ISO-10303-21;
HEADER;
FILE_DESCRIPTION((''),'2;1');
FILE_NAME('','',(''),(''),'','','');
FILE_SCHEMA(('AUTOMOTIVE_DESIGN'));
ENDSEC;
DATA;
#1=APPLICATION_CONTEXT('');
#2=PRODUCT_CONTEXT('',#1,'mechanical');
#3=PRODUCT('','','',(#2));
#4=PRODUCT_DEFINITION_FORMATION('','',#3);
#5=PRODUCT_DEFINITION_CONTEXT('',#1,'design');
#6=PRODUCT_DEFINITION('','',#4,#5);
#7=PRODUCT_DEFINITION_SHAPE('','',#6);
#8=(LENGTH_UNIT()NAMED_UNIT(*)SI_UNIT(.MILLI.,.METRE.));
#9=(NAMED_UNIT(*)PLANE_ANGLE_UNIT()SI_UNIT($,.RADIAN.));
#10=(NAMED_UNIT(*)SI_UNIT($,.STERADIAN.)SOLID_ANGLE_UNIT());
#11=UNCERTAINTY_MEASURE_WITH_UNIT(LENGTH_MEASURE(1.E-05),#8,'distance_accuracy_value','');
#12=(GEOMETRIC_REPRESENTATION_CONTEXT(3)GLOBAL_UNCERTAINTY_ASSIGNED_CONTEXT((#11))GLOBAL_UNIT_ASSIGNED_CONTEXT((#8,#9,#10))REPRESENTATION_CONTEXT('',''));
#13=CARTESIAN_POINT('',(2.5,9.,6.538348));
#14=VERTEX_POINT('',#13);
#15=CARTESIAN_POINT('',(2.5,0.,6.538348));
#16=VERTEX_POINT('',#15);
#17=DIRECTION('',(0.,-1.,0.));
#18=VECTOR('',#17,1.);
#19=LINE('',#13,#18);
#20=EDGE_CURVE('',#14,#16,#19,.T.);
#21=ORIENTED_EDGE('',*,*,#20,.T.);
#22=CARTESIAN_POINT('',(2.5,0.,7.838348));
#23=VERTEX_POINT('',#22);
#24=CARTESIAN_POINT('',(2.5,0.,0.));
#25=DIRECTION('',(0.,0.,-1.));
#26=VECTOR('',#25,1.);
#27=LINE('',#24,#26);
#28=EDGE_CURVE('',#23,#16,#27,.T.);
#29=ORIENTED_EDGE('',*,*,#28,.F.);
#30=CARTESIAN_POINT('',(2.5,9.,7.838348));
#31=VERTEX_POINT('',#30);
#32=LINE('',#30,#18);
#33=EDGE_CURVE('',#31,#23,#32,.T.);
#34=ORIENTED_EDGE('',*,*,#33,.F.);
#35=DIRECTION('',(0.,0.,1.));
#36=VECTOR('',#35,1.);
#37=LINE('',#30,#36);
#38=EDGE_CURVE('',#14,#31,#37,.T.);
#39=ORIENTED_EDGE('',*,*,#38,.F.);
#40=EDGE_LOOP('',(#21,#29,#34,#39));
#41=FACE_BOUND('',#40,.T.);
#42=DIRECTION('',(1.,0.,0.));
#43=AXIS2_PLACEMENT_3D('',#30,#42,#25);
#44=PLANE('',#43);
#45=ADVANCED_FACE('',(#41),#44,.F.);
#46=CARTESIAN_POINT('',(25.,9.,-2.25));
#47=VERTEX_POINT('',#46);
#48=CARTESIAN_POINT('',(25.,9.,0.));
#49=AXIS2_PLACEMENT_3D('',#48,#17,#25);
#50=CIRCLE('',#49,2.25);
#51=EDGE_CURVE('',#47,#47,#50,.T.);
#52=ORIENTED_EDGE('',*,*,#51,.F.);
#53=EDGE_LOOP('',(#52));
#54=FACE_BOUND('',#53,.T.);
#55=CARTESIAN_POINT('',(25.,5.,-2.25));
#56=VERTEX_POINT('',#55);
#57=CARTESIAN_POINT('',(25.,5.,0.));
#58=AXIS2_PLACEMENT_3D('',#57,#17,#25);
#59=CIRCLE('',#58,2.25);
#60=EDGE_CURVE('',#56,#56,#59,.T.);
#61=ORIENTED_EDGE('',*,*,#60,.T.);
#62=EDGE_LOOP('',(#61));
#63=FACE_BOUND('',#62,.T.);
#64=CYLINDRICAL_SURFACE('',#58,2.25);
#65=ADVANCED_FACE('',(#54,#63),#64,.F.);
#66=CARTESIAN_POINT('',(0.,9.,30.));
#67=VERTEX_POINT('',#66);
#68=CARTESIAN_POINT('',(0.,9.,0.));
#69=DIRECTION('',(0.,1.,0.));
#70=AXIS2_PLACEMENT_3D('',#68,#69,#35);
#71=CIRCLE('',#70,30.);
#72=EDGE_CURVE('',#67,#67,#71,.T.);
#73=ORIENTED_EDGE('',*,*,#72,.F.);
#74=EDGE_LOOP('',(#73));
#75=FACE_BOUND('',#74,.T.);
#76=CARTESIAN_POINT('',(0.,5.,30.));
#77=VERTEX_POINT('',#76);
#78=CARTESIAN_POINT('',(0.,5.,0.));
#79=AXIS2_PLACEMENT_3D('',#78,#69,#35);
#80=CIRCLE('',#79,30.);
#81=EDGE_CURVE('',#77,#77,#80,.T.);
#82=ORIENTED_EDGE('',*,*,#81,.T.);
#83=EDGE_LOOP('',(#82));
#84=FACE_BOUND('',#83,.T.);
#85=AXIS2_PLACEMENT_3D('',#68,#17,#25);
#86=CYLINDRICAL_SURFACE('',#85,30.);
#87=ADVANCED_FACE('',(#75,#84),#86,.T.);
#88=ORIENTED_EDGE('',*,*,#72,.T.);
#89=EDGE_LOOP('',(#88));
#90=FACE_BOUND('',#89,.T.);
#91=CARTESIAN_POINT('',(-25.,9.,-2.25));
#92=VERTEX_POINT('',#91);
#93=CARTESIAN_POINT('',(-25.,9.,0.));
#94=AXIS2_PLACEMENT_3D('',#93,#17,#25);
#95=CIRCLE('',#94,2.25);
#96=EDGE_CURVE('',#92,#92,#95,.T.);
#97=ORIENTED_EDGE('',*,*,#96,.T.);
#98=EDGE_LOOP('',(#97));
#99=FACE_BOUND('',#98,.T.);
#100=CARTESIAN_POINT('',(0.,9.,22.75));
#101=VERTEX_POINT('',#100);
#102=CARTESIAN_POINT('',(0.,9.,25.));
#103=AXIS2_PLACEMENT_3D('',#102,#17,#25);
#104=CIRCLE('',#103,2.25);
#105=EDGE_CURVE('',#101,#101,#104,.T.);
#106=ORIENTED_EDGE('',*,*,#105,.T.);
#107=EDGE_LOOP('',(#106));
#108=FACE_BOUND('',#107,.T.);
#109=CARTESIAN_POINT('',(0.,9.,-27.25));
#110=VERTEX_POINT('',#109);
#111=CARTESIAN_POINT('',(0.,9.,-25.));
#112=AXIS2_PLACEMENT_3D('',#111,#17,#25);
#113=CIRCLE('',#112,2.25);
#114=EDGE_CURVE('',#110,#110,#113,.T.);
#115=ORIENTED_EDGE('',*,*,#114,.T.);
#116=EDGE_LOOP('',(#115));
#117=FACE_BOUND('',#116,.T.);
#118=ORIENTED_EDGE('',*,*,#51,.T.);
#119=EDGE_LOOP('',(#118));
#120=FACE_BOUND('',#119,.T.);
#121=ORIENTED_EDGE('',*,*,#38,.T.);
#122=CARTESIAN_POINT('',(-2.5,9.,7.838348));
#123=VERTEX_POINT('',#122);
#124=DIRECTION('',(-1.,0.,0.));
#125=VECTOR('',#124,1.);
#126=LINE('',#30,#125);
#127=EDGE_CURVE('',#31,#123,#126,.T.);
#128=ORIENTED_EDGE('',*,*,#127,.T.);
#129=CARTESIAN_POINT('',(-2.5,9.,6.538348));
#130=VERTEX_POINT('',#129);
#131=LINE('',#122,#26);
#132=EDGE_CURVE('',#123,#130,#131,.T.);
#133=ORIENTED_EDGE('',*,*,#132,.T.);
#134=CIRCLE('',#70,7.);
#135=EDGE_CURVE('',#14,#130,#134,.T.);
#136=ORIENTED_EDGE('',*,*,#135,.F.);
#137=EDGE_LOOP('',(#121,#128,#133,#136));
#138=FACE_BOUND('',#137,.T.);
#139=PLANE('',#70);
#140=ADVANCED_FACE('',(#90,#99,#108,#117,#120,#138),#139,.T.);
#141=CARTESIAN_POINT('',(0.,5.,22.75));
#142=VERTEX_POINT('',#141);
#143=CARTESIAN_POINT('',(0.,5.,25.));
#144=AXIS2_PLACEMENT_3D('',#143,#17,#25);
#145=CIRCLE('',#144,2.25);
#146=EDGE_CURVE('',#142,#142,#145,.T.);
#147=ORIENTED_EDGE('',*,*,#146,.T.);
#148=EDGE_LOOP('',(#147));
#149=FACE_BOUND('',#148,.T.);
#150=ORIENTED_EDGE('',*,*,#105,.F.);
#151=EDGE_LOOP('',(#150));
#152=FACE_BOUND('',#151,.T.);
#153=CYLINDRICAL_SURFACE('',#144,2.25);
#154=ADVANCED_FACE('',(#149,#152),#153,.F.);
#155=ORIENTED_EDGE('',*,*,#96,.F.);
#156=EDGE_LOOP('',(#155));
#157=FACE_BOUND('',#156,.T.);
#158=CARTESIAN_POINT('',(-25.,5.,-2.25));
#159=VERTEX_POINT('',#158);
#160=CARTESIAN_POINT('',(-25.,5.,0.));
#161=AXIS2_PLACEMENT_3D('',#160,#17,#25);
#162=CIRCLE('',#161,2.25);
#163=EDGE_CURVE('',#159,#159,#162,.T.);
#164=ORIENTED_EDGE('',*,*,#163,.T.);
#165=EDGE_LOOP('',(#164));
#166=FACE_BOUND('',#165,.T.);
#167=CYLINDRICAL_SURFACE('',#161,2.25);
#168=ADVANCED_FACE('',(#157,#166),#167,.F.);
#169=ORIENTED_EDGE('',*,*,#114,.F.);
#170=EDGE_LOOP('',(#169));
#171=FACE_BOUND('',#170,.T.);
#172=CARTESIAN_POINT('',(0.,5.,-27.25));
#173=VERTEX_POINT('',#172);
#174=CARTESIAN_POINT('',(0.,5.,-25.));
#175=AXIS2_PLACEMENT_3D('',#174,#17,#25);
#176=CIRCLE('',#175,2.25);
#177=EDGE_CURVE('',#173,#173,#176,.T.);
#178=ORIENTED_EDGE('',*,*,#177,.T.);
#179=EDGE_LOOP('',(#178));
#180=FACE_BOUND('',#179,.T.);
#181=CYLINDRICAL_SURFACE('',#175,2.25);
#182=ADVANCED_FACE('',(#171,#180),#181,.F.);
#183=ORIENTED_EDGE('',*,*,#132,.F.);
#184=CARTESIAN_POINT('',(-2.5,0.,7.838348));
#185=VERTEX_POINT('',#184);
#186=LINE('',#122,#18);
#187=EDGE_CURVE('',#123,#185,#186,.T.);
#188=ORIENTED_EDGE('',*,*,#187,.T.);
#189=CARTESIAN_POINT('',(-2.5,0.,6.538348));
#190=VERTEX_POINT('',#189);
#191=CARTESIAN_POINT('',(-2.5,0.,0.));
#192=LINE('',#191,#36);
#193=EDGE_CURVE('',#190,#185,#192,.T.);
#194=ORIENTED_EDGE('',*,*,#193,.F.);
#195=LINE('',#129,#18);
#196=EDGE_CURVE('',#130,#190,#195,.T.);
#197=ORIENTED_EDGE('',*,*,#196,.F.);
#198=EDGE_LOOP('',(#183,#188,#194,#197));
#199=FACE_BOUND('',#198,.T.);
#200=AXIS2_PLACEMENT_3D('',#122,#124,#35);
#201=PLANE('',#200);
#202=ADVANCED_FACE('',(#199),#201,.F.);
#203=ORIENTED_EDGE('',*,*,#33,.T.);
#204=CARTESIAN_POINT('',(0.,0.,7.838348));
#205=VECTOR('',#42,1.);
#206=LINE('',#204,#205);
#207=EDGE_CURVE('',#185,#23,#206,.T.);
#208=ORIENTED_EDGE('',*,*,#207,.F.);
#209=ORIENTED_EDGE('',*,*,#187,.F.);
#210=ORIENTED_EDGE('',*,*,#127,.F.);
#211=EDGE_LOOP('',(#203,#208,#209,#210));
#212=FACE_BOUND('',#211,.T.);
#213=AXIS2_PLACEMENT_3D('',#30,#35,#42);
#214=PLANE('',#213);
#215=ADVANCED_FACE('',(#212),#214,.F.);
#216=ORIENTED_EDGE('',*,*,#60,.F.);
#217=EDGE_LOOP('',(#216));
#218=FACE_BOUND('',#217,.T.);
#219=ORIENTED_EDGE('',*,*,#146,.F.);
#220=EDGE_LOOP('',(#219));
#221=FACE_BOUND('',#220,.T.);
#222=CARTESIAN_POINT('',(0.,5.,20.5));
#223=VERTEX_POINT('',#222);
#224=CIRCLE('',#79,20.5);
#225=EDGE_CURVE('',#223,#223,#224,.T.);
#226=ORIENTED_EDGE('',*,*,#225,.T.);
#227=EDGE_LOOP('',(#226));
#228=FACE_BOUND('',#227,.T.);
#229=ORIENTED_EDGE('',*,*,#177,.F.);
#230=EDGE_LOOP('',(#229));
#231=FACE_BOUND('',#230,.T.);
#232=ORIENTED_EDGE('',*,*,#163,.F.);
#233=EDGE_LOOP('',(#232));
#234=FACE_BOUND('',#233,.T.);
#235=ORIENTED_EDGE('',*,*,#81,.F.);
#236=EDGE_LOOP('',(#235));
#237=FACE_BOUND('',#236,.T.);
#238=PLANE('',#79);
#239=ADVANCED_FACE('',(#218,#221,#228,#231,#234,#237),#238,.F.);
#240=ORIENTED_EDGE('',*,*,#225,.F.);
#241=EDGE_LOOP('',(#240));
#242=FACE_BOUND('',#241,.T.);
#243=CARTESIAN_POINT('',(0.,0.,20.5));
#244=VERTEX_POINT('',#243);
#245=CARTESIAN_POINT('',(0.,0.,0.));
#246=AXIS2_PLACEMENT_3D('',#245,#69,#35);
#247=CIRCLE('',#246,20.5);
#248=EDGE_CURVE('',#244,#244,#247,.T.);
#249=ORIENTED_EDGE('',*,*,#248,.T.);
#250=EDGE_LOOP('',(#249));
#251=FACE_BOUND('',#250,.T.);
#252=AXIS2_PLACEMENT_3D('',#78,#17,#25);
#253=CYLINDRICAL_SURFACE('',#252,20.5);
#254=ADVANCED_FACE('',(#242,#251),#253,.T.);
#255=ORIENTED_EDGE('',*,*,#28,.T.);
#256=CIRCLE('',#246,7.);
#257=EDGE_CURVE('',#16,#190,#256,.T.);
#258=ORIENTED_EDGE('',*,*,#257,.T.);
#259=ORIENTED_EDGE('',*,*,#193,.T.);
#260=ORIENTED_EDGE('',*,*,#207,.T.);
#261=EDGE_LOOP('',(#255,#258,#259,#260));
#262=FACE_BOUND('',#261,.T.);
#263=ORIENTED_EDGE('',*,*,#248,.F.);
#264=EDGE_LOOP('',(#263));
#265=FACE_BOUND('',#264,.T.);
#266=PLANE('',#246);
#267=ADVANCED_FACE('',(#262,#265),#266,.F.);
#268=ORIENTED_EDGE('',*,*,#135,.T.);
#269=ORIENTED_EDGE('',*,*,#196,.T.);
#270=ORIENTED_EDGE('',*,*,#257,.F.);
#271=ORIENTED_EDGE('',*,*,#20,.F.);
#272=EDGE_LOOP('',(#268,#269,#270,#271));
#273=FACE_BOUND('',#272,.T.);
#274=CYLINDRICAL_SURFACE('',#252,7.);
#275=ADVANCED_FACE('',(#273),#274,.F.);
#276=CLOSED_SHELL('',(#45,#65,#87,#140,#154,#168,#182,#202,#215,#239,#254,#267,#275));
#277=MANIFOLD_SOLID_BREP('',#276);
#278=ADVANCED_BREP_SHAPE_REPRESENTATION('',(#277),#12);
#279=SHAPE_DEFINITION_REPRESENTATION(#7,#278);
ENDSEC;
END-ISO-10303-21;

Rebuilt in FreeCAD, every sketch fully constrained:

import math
import FreeCAD as App
import Part
import Sketcher
Q = App.Units.Quantity

doc = App.newDocument("Part")
body = doc.addObject("PartDesign::Body", "Body")

sketch1 = doc.addObject("Sketcher::SketchObject", "Sketch")
body.addObject(sketch1)
sketch1.AttachmentSupport = (doc.XZ_Plane, [""])
sketch1.MapMode = "FlatFace"
sketch1.addGeometry([
    Part.Circle(App.Vector(0, 0, 0), App.Vector(0, 0, 1), 20),
    Part.Circle(App.Vector(0, 0, 0), App.Vector(0, 0, 1), 7),
], False)
sketch1.addConstraint([
    Sketcher.Constraint("Coincident", 0, 3, -1, 1),
    Sketcher.Constraint("Coincident", 1, 3, -1, 1),
    Sketcher.Constraint("Diameter", 0, Q("41 mm")),
    Sketcher.Constraint("Diameter", 1, Q("14 mm")),
])
pad1 = doc.addObject("PartDesign::Pad", "Pad")
body.addObject(pad1)
pad1.Profile = sketch1
pad1.Length = 5
pad1.Reversed = True

sketch2 = doc.addObject("Sketcher::SketchObject", "Sketch001")
body.addObject(sketch2)
sketch2.AttachmentSupport = (doc.XZ_Plane, [""])
sketch2.MapMode = "FlatFace"
sketch2.AttachmentOffset = App.Placement(App.Vector(0, 0, -5), App.Rotation())
sketch2.addGeometry([
    Part.Circle(App.Vector(0, 0, 0), App.Vector(0, 0, 1), 30),
    Part.Circle(App.Vector(0, 0, 0), App.Vector(0, 0, 1), 7),
], False)
sketch2.addConstraint([
    Sketcher.Constraint("Coincident", 0, 3, -1, 1),
    Sketcher.Constraint("Coincident", 1, 3, -1, 1),
    Sketcher.Constraint("Diameter", 0, Q("60 mm")),
    Sketcher.Constraint("Diameter", 1, Q("14 mm")),
])
pad2 = doc.addObject("PartDesign::Pad", "Pad001")
body.addObject(pad2)
pad2.Profile = sketch2
pad2.Length = 4
pad2.Reversed = True

sketch3 = doc.addObject("Sketcher::SketchObject", "Sketch002")
body.addObject(sketch3)
sketch3.AttachmentSupport = (doc.XZ_Plane, [""])
sketch3.MapMode = "FlatFace"
sketch3.AttachmentOffset = App.Placement(App.Vector(0, 0, -5), App.Rotation())
sketch3.addGeometry([
    Part.Circle(App.Vector(0, -25, 0), App.Vector(0, 0, 1), 2.2),
    Part.Circle(App.Vector(25, 0, 0), App.Vector(0, 0, 1), 2.2),
    Part.Circle(App.Vector(0, 25, 0), App.Vector(0, 0, 1), 2.2),
    Part.Circle(App.Vector(-25, 0, 0), App.Vector(0, 0, 1), 2.2),
], False)
sketch3.addConstraint([
    Sketcher.Constraint("Equal", 0, 1),
    Sketcher.Constraint("Equal", 1, 2),
    Sketcher.Constraint("Equal", 2, 3),
    Sketcher.Constraint("Symmetric", 0, 3, 2, 3, -1, 1),
    Sketcher.Constraint("Symmetric", 1, 3, 3, 3, -1, 1),
    Sketcher.Constraint("PointOnObject", 0, 3, -2),
    Sketcher.Constraint("PointOnObject", 1, 3, -1),
    Sketcher.Constraint("Diameter", 0, Q("4.5 mm")),
    Sketcher.Constraint("DistanceY", 0, 3, -1, 1, Q("25 mm")),
    Sketcher.Constraint("DistanceX", -1, 1, 1, 3, Q("25 mm")),
])
doc.recompute()
hole = doc.addObject("PartDesign::Hole", "Hole")
body.addObject(hole)
hole.Profile = sketch3
hole.ThreadType = "None"
hole.Diameter = 4.5
hole.DepthType = "ThroughAll"

sketch4 = doc.addObject("Sketcher::SketchObject", "Sketch003")
body.addObject(sketch4)
sketch4.AttachmentSupport = (doc.XZ_Plane, [""])
sketch4.MapMode = "FlatFace"
sketch4.addGeometry([
    Part.LineSegment(App.Vector(2.5, 7.8, 0), App.Vector(-2.5, 7.8, 0)),
    Part.LineSegment(App.Vector(-2.5, 7.8, 0), App.Vector(-2.5, 6.5, 0)),
    Part.ArcOfCircle(Part.Circle(App.Vector(0, 0, 0), App.Vector(0, 0, 1), 7), math.radians(69), math.radians(111)),
    Part.LineSegment(App.Vector(2.5, 6.5, 0), App.Vector(2.5, 7.8, 0)),
], False)
sketch4.addConstraint([
    Sketcher.Constraint("Coincident", 0, 2, 1, 1),
    Sketcher.Constraint("Coincident", 1, 2, 2, 2),
    Sketcher.Constraint("Coincident", 2, 1, 3, 1),
    Sketcher.Constraint("Coincident", 3, 2, 0, 1),
    Sketcher.Constraint("Horizontal", 0),
    Sketcher.Constraint("Vertical", 1),
    Sketcher.Constraint("Vertical", 3),
    Sketcher.Constraint("Coincident", 2, 3, -1, 1),
    Sketcher.Constraint("Horizontal", 1, 2, 2, 1),
    Sketcher.Constraint("Radius", 2, Q("7 mm")),
    Sketcher.Constraint("DistanceX", 0, 2, 0, 1, Q("5 mm")),
    Sketcher.Constraint("DistanceY", 1, 2, 1, 1, Q("1.3 mm")),
])
pocket1 = doc.addObject("PartDesign::Pocket", "Pocket")
body.addObject(pocket1)
pocket1.Profile = sketch4
pocket1.Type = "ThroughAll"
pocket1.Midplane = True

doc.recompute()
